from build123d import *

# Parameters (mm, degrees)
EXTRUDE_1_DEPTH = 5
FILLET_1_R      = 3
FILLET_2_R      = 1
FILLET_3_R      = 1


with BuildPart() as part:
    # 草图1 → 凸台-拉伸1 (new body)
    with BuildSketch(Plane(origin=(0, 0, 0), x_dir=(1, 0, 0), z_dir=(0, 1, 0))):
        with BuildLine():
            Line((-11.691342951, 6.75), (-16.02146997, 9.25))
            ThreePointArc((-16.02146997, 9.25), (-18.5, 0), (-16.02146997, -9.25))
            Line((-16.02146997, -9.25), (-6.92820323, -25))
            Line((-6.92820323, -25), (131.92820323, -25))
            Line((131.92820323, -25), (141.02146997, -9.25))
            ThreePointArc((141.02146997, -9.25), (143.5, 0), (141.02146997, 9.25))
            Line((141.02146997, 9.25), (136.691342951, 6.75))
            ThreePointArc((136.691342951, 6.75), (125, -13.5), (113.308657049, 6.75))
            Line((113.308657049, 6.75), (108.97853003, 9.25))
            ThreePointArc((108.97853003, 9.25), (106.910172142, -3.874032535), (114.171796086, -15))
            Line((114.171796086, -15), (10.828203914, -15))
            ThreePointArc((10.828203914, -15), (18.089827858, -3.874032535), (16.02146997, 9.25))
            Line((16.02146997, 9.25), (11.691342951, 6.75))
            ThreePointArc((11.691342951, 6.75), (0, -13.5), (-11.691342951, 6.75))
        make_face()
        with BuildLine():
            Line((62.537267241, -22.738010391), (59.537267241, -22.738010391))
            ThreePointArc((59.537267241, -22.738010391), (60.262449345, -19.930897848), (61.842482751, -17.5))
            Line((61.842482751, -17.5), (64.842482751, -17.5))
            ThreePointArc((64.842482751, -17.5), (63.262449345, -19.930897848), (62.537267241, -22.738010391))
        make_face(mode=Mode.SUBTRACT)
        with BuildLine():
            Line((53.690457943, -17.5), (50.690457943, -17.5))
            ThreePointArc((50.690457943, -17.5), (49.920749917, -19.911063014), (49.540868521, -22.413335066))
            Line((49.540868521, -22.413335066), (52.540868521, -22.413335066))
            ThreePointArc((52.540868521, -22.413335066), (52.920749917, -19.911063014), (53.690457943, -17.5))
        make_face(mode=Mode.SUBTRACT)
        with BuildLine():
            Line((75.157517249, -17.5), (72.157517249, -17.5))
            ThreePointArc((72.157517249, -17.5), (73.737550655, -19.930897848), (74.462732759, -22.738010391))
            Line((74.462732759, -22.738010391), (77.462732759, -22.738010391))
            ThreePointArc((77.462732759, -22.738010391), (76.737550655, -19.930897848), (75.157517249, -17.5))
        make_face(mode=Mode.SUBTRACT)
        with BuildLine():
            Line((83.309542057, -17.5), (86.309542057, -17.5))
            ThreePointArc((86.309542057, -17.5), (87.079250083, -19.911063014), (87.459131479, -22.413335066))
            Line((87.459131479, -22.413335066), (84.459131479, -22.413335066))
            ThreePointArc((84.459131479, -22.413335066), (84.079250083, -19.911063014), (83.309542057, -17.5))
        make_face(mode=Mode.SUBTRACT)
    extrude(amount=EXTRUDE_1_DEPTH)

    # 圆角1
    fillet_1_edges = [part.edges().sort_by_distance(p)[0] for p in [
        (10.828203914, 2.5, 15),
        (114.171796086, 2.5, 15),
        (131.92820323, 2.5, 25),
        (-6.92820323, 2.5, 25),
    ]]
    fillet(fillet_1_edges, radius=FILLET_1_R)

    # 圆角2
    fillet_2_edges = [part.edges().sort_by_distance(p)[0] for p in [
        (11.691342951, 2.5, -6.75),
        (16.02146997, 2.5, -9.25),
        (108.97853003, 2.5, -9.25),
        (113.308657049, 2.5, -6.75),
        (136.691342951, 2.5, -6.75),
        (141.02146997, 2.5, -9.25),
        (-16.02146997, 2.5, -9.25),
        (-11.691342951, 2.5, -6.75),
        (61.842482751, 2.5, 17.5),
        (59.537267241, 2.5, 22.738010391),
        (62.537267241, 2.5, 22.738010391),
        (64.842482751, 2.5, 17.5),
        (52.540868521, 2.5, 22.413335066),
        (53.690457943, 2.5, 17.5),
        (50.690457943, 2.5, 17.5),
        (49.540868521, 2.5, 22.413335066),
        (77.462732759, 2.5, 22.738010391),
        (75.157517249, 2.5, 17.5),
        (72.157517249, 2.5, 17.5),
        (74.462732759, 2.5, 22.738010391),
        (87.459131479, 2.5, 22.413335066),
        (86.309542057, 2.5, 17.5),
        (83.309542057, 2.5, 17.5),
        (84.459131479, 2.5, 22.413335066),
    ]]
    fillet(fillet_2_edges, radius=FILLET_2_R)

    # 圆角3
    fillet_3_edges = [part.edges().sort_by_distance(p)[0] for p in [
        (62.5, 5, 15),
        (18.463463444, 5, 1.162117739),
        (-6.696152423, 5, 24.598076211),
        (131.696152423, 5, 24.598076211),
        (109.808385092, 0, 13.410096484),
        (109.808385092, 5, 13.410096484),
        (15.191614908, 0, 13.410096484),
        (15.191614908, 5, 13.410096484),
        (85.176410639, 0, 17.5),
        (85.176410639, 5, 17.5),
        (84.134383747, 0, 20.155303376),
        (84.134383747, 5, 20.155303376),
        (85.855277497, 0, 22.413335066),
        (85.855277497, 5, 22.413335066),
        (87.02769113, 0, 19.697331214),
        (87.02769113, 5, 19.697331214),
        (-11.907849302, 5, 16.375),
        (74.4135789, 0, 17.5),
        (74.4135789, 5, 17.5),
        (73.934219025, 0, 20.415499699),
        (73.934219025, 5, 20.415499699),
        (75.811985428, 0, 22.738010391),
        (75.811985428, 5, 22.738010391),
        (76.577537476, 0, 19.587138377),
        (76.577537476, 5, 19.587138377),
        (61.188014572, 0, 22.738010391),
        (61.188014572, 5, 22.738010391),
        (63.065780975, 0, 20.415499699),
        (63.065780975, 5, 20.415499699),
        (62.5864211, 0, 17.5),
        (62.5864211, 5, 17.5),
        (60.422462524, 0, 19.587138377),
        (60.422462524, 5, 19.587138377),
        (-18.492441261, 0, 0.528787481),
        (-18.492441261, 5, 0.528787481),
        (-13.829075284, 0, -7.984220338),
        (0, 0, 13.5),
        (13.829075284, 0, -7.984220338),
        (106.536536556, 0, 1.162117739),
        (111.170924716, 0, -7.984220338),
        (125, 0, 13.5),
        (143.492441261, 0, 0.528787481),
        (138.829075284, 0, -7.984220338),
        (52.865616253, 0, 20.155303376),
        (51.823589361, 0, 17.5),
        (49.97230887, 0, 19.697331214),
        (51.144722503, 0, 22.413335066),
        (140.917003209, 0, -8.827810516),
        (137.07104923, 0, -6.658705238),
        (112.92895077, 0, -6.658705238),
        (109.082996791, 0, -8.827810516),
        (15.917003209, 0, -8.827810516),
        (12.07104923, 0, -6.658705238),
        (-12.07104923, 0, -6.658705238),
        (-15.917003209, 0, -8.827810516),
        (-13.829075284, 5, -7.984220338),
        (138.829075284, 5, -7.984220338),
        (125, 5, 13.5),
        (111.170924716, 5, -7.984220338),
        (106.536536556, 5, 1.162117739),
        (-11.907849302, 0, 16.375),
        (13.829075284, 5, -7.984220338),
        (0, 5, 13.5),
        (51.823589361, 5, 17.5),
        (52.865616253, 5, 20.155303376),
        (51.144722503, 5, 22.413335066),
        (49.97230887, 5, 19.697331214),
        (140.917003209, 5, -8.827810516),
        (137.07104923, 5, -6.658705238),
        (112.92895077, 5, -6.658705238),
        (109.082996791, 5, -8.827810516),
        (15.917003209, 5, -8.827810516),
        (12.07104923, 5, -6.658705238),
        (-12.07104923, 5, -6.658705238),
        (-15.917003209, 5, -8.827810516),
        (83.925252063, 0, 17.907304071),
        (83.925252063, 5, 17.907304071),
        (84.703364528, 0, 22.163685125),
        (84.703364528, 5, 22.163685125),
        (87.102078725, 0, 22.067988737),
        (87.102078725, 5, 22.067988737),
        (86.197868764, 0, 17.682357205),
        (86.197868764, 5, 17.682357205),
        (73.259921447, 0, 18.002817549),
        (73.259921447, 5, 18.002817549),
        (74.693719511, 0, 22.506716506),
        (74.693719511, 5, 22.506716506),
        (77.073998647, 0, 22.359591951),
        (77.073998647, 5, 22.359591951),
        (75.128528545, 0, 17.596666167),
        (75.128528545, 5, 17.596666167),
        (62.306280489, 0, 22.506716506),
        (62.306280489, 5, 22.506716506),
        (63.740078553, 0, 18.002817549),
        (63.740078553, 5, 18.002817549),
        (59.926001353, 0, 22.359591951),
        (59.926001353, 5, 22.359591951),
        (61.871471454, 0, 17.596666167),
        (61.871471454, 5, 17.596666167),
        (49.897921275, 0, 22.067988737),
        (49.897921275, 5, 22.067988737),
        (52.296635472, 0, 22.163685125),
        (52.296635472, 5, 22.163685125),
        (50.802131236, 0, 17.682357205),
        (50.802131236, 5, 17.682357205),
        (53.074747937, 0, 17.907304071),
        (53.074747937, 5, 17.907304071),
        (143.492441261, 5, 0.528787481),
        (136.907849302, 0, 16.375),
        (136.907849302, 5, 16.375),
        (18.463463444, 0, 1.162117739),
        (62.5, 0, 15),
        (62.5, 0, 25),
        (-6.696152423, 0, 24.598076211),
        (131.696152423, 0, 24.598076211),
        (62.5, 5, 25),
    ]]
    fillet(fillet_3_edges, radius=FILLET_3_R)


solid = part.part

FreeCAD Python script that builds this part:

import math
import FreeCAD as App
import Part
import Sketcher
Q = App.Units.Quantity


def edges_at(feature, points):
    """Names of the edges that pass closest to the given points."""
    edges = feature.Shape.Edges
    near = lambda p: min(range(len(edges)), key=lambda i: edges[i].distToShape(Part.Vertex(*p))[0])
    return sorted({f"Edge{near(p) + 1}" for p in points})

doc = App.newDocument("Part")
body = doc.addObject("PartDesign::Body", "Body")

# Sketch on XZ plane
sketch1 = body.newObject("Sketcher::SketchObject", "Sketch")
sketch1.AttachmentSupport = (doc.getObject("XZ_Plane"), [""])
sketch1.MapMode = "FlatFace"
sketch1.addGeometry(Part.LineSegment(App.Vector(-11.7, -6.8, 0), App.Vector(-16, -9.2, 0)), False)
sketch1.addGeometry(Part.ArcOfCircle(Part.Circle(App.Vector(0, 0, 0), App.Vector(0, 0, 1), 18.5), math.radians(150), math.radians(210)), False)
sketch1.addGeometry(Part.LineSegment(App.Vector(-16, 9.2, 0), App.Vector(-6.9, 25, 0)), False)
sketch1.addGeometry(Part.LineSegment(App.Vector(-6.9, 25, 0), App.Vector(131.9, 25, 0)), False)
sketch1.addGeometry(Part.LineSegment(App.Vector(131.9, 25, 0), App.Vector(141, 9.2, 0)), False)
sketch1.addGeometry(Part.ArcOfCircle(Part.Circle(App.Vector(125, 0, 0), App.Vector(0, 0, 1), 18.5), math.radians(-30), math.radians(30)), False)
sketch1.addGeometry(Part.LineSegment(App.Vector(141, -9.2, 0), App.Vector(136.7, -6.8, 0)), False)
sketch1.addGeometry(Part.ArcOfCircle(Part.Circle(App.Vector(125, 0, 0), App.Vector(0, 0, 1), 13.5), math.radians(-30), math.radians(210)), False)
sketch1.addGeometry(Part.LineSegment(App.Vector(113.3, -6.8, 0), App.Vector(109, -9.2, 0)), False)
sketch1.addGeometry(Part.ArcOfCircle(Part.Circle(App.Vector(125, 0, 0), App.Vector(0, 0, 1), 18.5), math.radians(126), math.radians(210)), False)
sketch1.addGeometry(Part.LineSegment(App.Vector(114.2, 15, 0), App.Vector(10.8, 15, 0)), False)
sketch1.addGeometry(Part.ArcOfCircle(Part.Circle(App.Vector(0, 0, 0), App.Vector(0, 0, 1), 18.5), math.radians(-30), math.radians(54)), False)
sketch1.addGeometry(Part.LineSegment(App.Vector(16, -9.2, 0), App.Vector(11.7, -6.8, 0)), False)
sketch1.addGeometry(Part.ArcOfCircle(Part.Circle(App.Vector(0, 0, 0), App.Vector(0, 0, 1), 13.5), math.radians(-30), math.radians(210)), False)
sketch1.addGeometry(Part.ArcOfCircle(Part.Circle(App.Vector(71.5, 23.6, 0), App.Vector(0, 0, 1), 9), math.radians(-175), math.radians(-138)), False)
sketch1.addGeometry(Part.LineSegment(App.Vector(62.5, 22.7, 0), App.Vector(59.5, 22.7, 0)), False)
sketch1.addGeometry(Part.ArcOfCircle(Part.Circle(App.Vector(68.5, 23.6, 0), App.Vector(0, 0, 1), 9), math.radians(-175), math.radians(-138)), False)
sketch1.addGeometry(Part.LineSegment(App.Vector(61.8, 17.5, 0), App.Vector(64.8, 17.5, 0)), False)
sketch1.addGeometry(Part.LineSegment(App.Vector(72.2, 17.5, 0), App.Vector(75.2, 17.5, 0)), False)
sketch1.addGeometry(Part.ArcOfCircle(Part.Circle(App.Vector(68.5, 23.6, 0), App.Vector(0, 0, 1), 9), math.radians(-42), math.radians(-5)), False)
sketch1.addGeometry(Part.LineSegment(App.Vector(77.5, 22.7, 0), App.Vector(74.5, 22.7, 0)), False)
sketch1.addGeometry(Part.ArcOfCircle(Part.Circle(App.Vector(65.5, 23.6, 0), App.Vector(0, 0, 1), 9), math.radians(-42), math.radians(-5)), False)
sketch1.addGeometry(Part.LineSegment(App.Vector(50.7, 17.5, 0), App.Vector(53.7, 17.5, 0)), False)
sketch1.addGeometry(Part.ArcOfCircle(Part.Circle(App.Vector(68.5, 23.6, 0), App.Vector(0, 0, 1), 16), math.radians(-175.9), math.radians(-157.76)), False)
sketch1.addGeometry(Part.LineSegment(App.Vector(52.5, 22.4, 0), App.Vector(49.5, 22.4, 0)), False)
sketch1.addGeometry(Part.ArcOfCircle(Part.Circle(App.Vector(65.5, 23.6, 0), App.Vector(0, 0, 1), 16), math.radians(-175.9), math.radians(-157.76)), False)
sketch1.addGeometry(Part.ArcOfCircle(Part.Circle(App.Vector(68.5, 23.6, 0), App.Vector(0, 0, 1), 16), math.radians(-22.24), math.radians(-4.1)), False)
sketch1.addGeometry(Part.LineSegment(App.Vector(83.3, 17.5, 0), App.Vector(86.3, 17.5, 0)), False)
sketch1.addGeometry(Part.ArcOfCircle(Part.Circle(App.Vector(71.5, 23.6, 0), App.Vector(0, 0, 1), 16), math.radians(-22.24), math.radians(-4.1)), False)
sketch1.addGeometry(Part.LineSegment(App.Vector(87.5, 22.4, 0), App.Vector(84.5, 22.4, 0)), False)
sketch1.addConstraint(Sketcher.Constraint("Coincident", 0, 2, 1, 2))
sketch1.addConstraint(Sketcher.Constraint("Tangent", 1, 1, 2, 1))
sketch1.addConstraint(Sketcher.Constraint("Coincident", 2, 2, 3, 1))
sketch1.addConstraint(Sketcher.Constraint("Coincident", 3, 2, 4, 1))
sketch1.addConstraint(Sketcher.Constraint("Tangent", 4, 2, 5, 2))
sketch1.addConstraint(Sketcher.Constraint("Coincident", 5, 1, 6, 1))
sketch1.addConstraint(Sketcher.Constraint("Coincident", 6, 2, 7, 1))
sketch1.addConstraint(Sketcher.Constraint("Coincident", 7, 2, 8, 1))
sketch1.addConstraint(Sketcher.Constraint("Coincident", 8, 2, 9, 2))
sketch1.addConstraint(Sketcher.Constraint("Coincident", 9, 1, 10, 1))
sketch1.addConstraint(Sketcher.Constraint("Coincident", 10, 2, 11, 2))
sketch1.addConstraint(Sketcher.Constraint("Coincident", 11, 1, 12, 1))
sketch1.addConstraint(Sketcher.Constraint("Coincident", 12, 2, 13, 1))
sketch1.addConstraint(Sketcher.Constraint("Coincident", 13, 2, 0, 1))
sketch1.addConstraint(Sketcher.Constraint("Coincident", 14, 1, 15, 1))
sketch1.addConstraint(Sketcher.Constraint("Coincident", 15, 2, 16, 1))
sketch1.addConstraint(Sketcher.Constraint("Coincident", 16, 2, 17, 1))
sketch1.addConstraint(Sketcher.Constraint("Coincident", 17, 2, 14, 2))
sketch1.addConstraint(Sketcher.Constraint("Coincident", 18, 2, 19, 1))
sketch1.addConstraint(Sketcher.Constraint("Coincident", 19, 2, 20, 1))
sketch1.addConstraint(Sketcher.Constraint("Coincident", 20, 2, 21, 2))
sketch1.addConstraint(Sketcher.Constraint("Coincident", 21, 1, 18, 1))
sketch1.addConstraint(Sketcher.Constraint("Coincident", 22, 2, 23, 2))
sketch1.addConstraint(Sketcher.Constraint("Coincident", 23, 1, 24, 1))
sketch1.addConstraint(Sketcher.Constraint("Coincident", 24, 2, 25, 1))
sketch1.addConstraint(Sketcher.Constraint("Coincident", 25, 2, 22, 1))
sketch1.addConstraint(Sketcher.Constraint("Coincident", 26, 1, 27, 1))
sketch1.addConstraint(Sketcher.Constraint("Coincident", 27, 2, 28, 1))
sketch1.addConstraint(Sketcher.Constraint("Coincident", 28, 2, 29, 1))
sketch1.addConstraint(Sketcher.Constraint("Coincident", 29, 2, 26, 2))
sketch1.addConstraint(Sketcher.Constraint("Horizontal", 3))
sketch1.addConstraint(Sketcher.Constraint("Horizontal", 10))
sketch1.addConstraint(Sketcher.Constraint("Horizontal", 15))
sketch1.addConstraint(Sketcher.Constraint("Horizontal", 17))
sketch1.addConstraint(Sketcher.Constraint("Horizontal", 18))
sketch1.addConstraint(Sketcher.Constraint("Horizontal", 20))
sketch1.addConstraint(Sketcher.Constraint("Horizontal", 22))
sketch1.addConstraint(Sketcher.Constraint("Horizontal", 24))
sketch1.addConstraint(Sketcher.Constraint("Horizontal", 27))
sketch1.addConstraint(Sketcher.Constraint("Horizontal", 29))
sketch1.addConstraint(Sketcher.Constraint("Coincident", 1, 3, -1, 1))
sketch1.addConstraint(Sketcher.Constraint("Coincident", 11, 3, -1, 1))
sketch1.addConstraint(Sketcher.Constraint("Coincident", 13, 3, -1, 1))
sketch1.addConstraint(Sketcher.Constraint("Coincident", 7, 3, 5, 3))
sketch1.addConstraint(Sketcher.Constraint("Coincident", 9, 3, 5, 3))
sketch1.addConstraint(Sketcher.Constraint("Coincident", 19, 3, 16, 3))
sketch1.addConstraint(Sketcher.Constraint("Coincident", 23, 3, 16, 3))
sketch1.addConstraint(Sketcher.Constraint("Coincident", 25, 3, 21, 3))
sketch1.addConstraint(Sketcher.Constraint("Coincident", 26, 3, 16, 3))
sketch1.addConstraint(Sketcher.Constraint("Coincident", 28, 3, 14, 3))
sketch1.addConstraint(Sketcher.Constraint("Equal", 1, 5))
sketch1.addConstraint(Sketcher.Constraint("Equal", 5, 9))
sketch1.addConstraint(Sketcher.Constraint("Equal", 9, 11))
sketch1.addConstraint(Sketcher.Constraint("Equal", 7, 13))
sketch1.addConstraint(Sketcher.Constraint("Equal", 14, 16))
sketch1.addConstraint(Sketcher.Constraint("Equal", 16, 19))
sketch1.addConstraint(Sketcher.Constraint("Equal", 19, 21))
sketch1.addConstraint(Sketcher.Constraint("Equal", 23, 25))
sketch1.addConstraint(Sketcher.Constraint("Equal", 25, 26))
sketch1.addConstraint(Sketcher.Constraint("Equal", 26, 28))
sketch1.addConstraint(Sketcher.Constraint("Symmetric", 4, 2, 5, 1, -1))
sketch1.addConstraint(Sketcher.Constraint("Perpendicular", 0, 4))
sketch1.addConstraint(Sketcher.Constraint("Perpendicular", 2, 6))
sketch1.addConstraint(Sketcher.Constraint("Perpendicular", 4, 8))
sketch1.addConstraint(Sketcher.Constraint("Parallel", 6, 12))
sketch1.addConstraint(Sketcher.Constraint("Horizontal", 14, 3, 16, 3))
sketch1.addConstraint(Sketcher.Constraint("Horizontal", 19, 3, 21, 3))
sketch1.addConstraint(Sketcher.Constraint("Horizontal", 1, 1, 4, 2))
sketch1.addConstraint(Sketcher.Constraint("Horizontal", 0, 2, 5, 1))
sketch1.addConstraint(Sketcher.Constraint("Horizontal", 6, 2, 7, 2))
sketch1.addConstraint(Sketcher.Constraint("Horizontal", 8, 2, 11, 1))
sketch1.addConstraint(Sketcher.Constraint("Horizontal", 17, 2, 18, 2))
sketch1.addConstraint(Sketcher.Constraint("Horizontal", 15, 2, 19, 2))
sketch1.addConstraint(Sketcher.Constraint("Horizontal", 21, 1, 22, 2))
sketch1.addConstraint(Sketcher.Constraint("Horizontal", 25, 2, 26, 1))
sketch1.addConstraint(Sketcher.Constraint("Horizontal", 24, 2, 28, 2))
sketch1.addConstraint(Sketcher.Constraint("Equal", 17, 18))
sketch1.addConstraint(Sketcher.Constraint("Radius", 14, 9.0))
sketch1.addConstraint(Sketcher.Constraint("Radius", 23, 16.0))
sketch1.addConstraint(Sketcher.Constraint("Radius", 1, 18.5))
sketch1.addConstraint(Sketcher.Constraint("Radius", 7, 13.5))
sketch1.addConstraint(Sketcher.Constraint("DistanceX", 15, 2, 15, 1, 3.0))
sketch1.addConstraint(Sketcher.Constraint("Angle", 0, Q("-150 deg")))
sketch1.addConstraint(Sketcher.Constraint("DistanceX", -1, 1, 5, 3, 125.0))
sketch1.addConstraint(Sketcher.Constraint("DistanceY", -1, 1, 2, 2, 25.0))
sketch1.addConstraint(Sketcher.Constraint("DistanceY", -1, 1, 9, 1, 15.0))
sketch1.addConstraint(Sketcher.Constraint("DistanceX", -1, 1, 14, 3, 71.5))
sketch1.addConstraint(Sketcher.Constraint("DistanceY", -1, 1, 16, 2, 17.5))
sketch1.addConstraint(Sketcher.Constraint("DistanceX", 23, 1, 15, 2, 6.996399))
sketch1.addConstraint(Sketcher.Constraint("DistanceY", -1, 1, 14, 1, 22.73801))
sketch1.addConstraint(Sketcher.Constraint("DistanceX", -1, 1, 23, 1, 52.540869))
pad1 = body.newObject("PartDesign::Pad", "Pad")
pad1.Profile = sketch1
pad1.Length = 5
pad1.Reversed = True
doc.recompute()

fillet = body.newObject("PartDesign::Fillet", "Fillet")
fillet.Base = (pad1, edges_at(pad1, [
    (10.828, 2.5, 15),
    (114.172, 2.5, 15),
    (131.928, 2.5, 25),
    (-6.928, 2.5, 25),
]))
fillet.Radius = 3
doc.recompute()

fillet2 = body.newObject("PartDesign::Fillet", "Fillet001")
fillet2.Base = (fillet, edges_at(fillet, [
    (11.691, 2.5, -6.75),
    (16.021, 2.5, -9.25),
    (108.979, 2.5, -9.25),
    (113.309, 2.5, -6.75),
    (136.691, 2.5, -6.75),
    (141.021, 2.5, -9.25),
    (-16.021, 2.5, -9.25),
    (-11.691, 2.5, -6.75),
    (61.842, 2.5, 17.5),
    (59.537, 2.5, 22.738),
    (62.537, 2.5, 22.738),
    (64.842, 2.5, 17.5),
    (52.541, 2.5, 22.413),
    (53.69, 2.5, 17.5),
    (50.69, 2.5, 17.5),
    (49.541, 2.5, 22.413),
    (77.463, 2.5, 22.738),
    (75.158, 2.5, 17.5),
    (72.158, 2.5, 17.5),
    (74.463, 2.5, 22.738),
    (87.459, 2.5, 22.413),
    (86.31, 2.5, 17.5),
    (83.31, 2.5, 17.5),
    (84.459, 2.5, 22.413),
]))
fillet2.Radius = 1
doc.recompute()

fillet3 = body.newObject("PartDesign::Fillet", "Fillet002")
fillet3.Base = (fillet2, edges_at(fillet2, [
    (62.5, 5, 15),
    (18.463, 5, 1.162),
    (-6.696, 5, 24.598),
    (131.696, 5, 24.598),
    (109.808, 0, 13.41),
    (109.808, 5, 13.41),
    (15.192, 0, 13.41),
    (15.192, 5, 13.41),
    (85.176, 0, 17.5),
    (85.176, 5, 17.5),
    (84.134, 0, 20.155),
    (84.134, 5, 20.155),
    (85.855, 0, 22.413),
    (85.855, 5, 22.413),
    (87.028, 0, 19.697),
    (87.028, 5, 19.697),
    (-11.908, 5, 16.375),
    (74.414, 0, 17.5),
    (74.414, 5, 17.5),
    (73.934, 0, 20.415),
    (73.934, 5, 20.415),
    (75.812, 0, 22.738),
    (75.812, 5, 22.738),
    (76.578, 0, 19.587),
    (76.578, 5, 19.587),
    (61.188, 0, 22.738),
    (61.188, 5, 22.738),
    (63.066, 0, 20.415),
    (63.066, 5, 20.415),
    (62.586, 0, 17.5),
    (62.586, 5, 17.5),
    (60.422, 0, 19.587),
    (60.422, 5, 19.587),
    (-18.492, 0, 0.529),
    (-18.492, 5, 0.529),
    (-13.829, 0, -7.984),
    (0, 0, 13.5),
    (13.829, 0, -7.984),
    (106.537, 0, 1.162),
    (111.171, 0, -7.984),
    (125, 0, 13.5),
    (143.492, 0, 0.529),
    (138.829, 0, -7.984),
    (52.866, 0, 20.155),
    (51.824, 0, 17.5),
    (49.972, 0, 19.697),
    (51.145, 0, 22.413),
    (140.917, 0, -8.828),
    (137.071, 0, -6.659),
    (112.929, 0, -6.659),
    (109.083, 0, -8.828),
    (15.917, 0, -8.828),
    (12.071, 0, -6.659),
    (-12.071, 0, -6.659),
    (-15.917, 0, -8.828),
    (-13.829, 5, -7.984),
    (138.829, 5, -7.984),
    (125, 5, 13.5),
    (111.171, 5, -7.984),
    (106.537, 5, 1.162),
    (-11.908, 0, 16.375),
    (13.829, 5, -7.984),
    (0, 5, 13.5),
    (51.824, 5, 17.5),
    (52.866, 5, 20.155),
    (51.145, 5, 22.413),
    (49.972, 5, 19.697),
    (140.917, 5, -8.828),
    (137.071, 5, -6.659),
    (112.929, 5, -6.659),
    (109.083, 5, -8.828),
    (15.917, 5, -8.828),
    (12.071, 5, -6.659),
    (-12.071, 5, -6.659),
    (-15.917, 5, -8.828),
    (83.925, 0, 17.907),
    (83.925, 5, 17.907),
    (84.703, 0, 22.164),
    (84.703, 5, 22.164),
    (87.102, 0, 22.068),
    (87.102, 5, 22.068),
    (86.198, 0, 17.682),
    (86.198, 5, 17.682),
    (73.26, 0, 18.003),
    (73.26, 5, 18.003),
    (74.694, 0, 22.507),
    (74.694, 5, 22.507),
    (77.074, 0, 22.36),
    (77.074, 5, 22.36),
    (75.129, 0, 17.597),
    (75.129, 5, 17.597),
    (62.306, 0, 22.507),
    (62.306, 5, 22.507),
    (63.74, 0, 18.003),
    (63.74, 5, 18.003),
    (59.926, 0, 22.36),
    (59.926, 5, 22.36),
    (61.871, 0, 17.597),
    (61.871, 5, 17.597),
    (49.898, 0, 22.068),
    (49.898, 5, 22.068),
    (52.297, 0, 22.164),
    (52.297, 5, 22.164),
    (50.802, 0, 17.682),
    (50.802, 5, 17.682),
    (53.075, 0, 17.907),
    (53.075, 5, 17.907),
    (143.492, 5, 0.529),
    (136.908, 0, 16.375),
    (136.908, 5, 16.375),
    (18.463, 0, 1.162),
    (62.5, 0, 15),
    (62.5, 0, 25),
    (-6.696, 0, 24.598),
    (131.696, 0, 24.598),
    (62.5, 5, 25),
]))
fillet3.Radius = 1

doc.recompute()
